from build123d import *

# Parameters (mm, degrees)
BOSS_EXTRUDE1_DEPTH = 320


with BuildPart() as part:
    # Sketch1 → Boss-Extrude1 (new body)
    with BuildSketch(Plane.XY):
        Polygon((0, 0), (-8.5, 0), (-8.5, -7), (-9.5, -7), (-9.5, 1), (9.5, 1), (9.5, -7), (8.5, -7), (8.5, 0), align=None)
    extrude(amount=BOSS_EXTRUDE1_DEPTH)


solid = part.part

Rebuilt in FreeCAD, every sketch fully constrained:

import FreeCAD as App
import Part
import Sketcher
from FreeCAD import Vector
Q = App.Units.Quantity

doc = App.newDocument("Part")
params = doc.addObject("Spreadsheet::Sheet", "Params")
for row, (alias, value) in enumerate([
    ("sketch1_width", "17 mm"),
    ("sketch1_width2", "1 mm"),
    ("sketch1_height", "7 mm"),
    ("sketch1_height2", "8 mm"),
    ("pad1_length", "320 mm"),
], start=1):
    params.set(f"A{row}", alias)
    params.set(f"B{row}", "=" + value)
    params.setAlias(f"B{row}", alias)

body = doc.addObject("PartDesign::Body", "Body")

# Sketch on XY plane
sketch1 = body.newObject("Sketcher::SketchObject", "Sketch")
sketch1.AttachmentSupport = (doc.getObject("XY_Plane"), [""])
sketch1.MapMode = "FlatFace"
sketch1.addGeometry([
    Part.LineSegment(Vector(-8.5, 0, 0), Vector(8.5, 0, 0)),  # 0
    Part.LineSegment(Vector(8.5, 0, 0), Vector(8.5, -7, 0)),  # 1
    Part.LineSegment(Vector(8.5, -7, 0), Vector(9.5, -7, 0)),  # 2
    Part.LineSegment(Vector(9.5, -7, 0), Vector(9.5, 1, 0)),  # 3
    Part.LineSegment(Vector(9.5, 1, 0), Vector(-9.5, 1, 0)),  # 4
    Part.LineSegment(Vector(-9.5, 1, 0), Vector(-9.5, -7, 0)),  # 5
    Part.LineSegment(Vector(-9.5, -7, 0), Vector(-8.5, -7, 0)),  # 6
    Part.LineSegment(Vector(-8.5, -7, 0), Vector(-8.5, 0, 0)),  # 7
], False)
sketch1.addConstraint([
    Sketcher.Constraint("Coincident", 0, 2, 1, 1),
    Sketcher.Constraint("Coincident", 1, 2, 2, 1),
    Sketcher.Constraint("Coincident", 2, 2, 3, 1),
    Sketcher.Constraint("Coincident", 3, 2, 4, 1),
    Sketcher.Constraint("Coincident", 4, 2, 5, 1),
    Sketcher.Constraint("Coincident", 5, 2, 6, 1),
    Sketcher.Constraint("Coincident", 6, 2, 7, 1),
    Sketcher.Constraint("Coincident", 7, 2, 0, 1),
    Sketcher.Constraint("Horizontal", 0),
    Sketcher.Constraint("Vertical", 1),
    Sketcher.Constraint("Horizontal", 2),
    Sketcher.Constraint("Vertical", 3),
    Sketcher.Constraint("Horizontal", 4),
    Sketcher.Constraint("Vertical", 5),
    Sketcher.Constraint("Horizontal", 6),
    Sketcher.Constraint("Vertical", 7),
    Sketcher.Constraint("Symmetric", 0, 2, 7, 2, -1, 1),
    Sketcher.Constraint("Symmetric", 2, 2, 5, 2, -2),
    Sketcher.Constraint("DistanceX", 0, 1, 0, 2, Q("17 mm")),
    Sketcher.Constraint("DistanceX", 2, 1, 2, 2, Q("1 mm")),
    Sketcher.Constraint("DistanceY", 1, 2, 1, 1, Q("7 mm")),
    Sketcher.Constraint("DistanceY", 3, 1, 3, 2, Q("8 mm")),
])
sketch1.setExpression("Constraints[18]", "Params.sketch1_width")
sketch1.setExpression("Constraints[19]", "Params.sketch1_width2")
sketch1.setExpression("Constraints[20]", "Params.sketch1_height")
sketch1.setExpression("Constraints[21]", "Params.sketch1_height2")
pad1 = body.newObject("PartDesign::Pad", "Pad")
pad1.Profile = sketch1
pad1.setExpression("Length", "Params.pad1_length")

doc.recompute()
